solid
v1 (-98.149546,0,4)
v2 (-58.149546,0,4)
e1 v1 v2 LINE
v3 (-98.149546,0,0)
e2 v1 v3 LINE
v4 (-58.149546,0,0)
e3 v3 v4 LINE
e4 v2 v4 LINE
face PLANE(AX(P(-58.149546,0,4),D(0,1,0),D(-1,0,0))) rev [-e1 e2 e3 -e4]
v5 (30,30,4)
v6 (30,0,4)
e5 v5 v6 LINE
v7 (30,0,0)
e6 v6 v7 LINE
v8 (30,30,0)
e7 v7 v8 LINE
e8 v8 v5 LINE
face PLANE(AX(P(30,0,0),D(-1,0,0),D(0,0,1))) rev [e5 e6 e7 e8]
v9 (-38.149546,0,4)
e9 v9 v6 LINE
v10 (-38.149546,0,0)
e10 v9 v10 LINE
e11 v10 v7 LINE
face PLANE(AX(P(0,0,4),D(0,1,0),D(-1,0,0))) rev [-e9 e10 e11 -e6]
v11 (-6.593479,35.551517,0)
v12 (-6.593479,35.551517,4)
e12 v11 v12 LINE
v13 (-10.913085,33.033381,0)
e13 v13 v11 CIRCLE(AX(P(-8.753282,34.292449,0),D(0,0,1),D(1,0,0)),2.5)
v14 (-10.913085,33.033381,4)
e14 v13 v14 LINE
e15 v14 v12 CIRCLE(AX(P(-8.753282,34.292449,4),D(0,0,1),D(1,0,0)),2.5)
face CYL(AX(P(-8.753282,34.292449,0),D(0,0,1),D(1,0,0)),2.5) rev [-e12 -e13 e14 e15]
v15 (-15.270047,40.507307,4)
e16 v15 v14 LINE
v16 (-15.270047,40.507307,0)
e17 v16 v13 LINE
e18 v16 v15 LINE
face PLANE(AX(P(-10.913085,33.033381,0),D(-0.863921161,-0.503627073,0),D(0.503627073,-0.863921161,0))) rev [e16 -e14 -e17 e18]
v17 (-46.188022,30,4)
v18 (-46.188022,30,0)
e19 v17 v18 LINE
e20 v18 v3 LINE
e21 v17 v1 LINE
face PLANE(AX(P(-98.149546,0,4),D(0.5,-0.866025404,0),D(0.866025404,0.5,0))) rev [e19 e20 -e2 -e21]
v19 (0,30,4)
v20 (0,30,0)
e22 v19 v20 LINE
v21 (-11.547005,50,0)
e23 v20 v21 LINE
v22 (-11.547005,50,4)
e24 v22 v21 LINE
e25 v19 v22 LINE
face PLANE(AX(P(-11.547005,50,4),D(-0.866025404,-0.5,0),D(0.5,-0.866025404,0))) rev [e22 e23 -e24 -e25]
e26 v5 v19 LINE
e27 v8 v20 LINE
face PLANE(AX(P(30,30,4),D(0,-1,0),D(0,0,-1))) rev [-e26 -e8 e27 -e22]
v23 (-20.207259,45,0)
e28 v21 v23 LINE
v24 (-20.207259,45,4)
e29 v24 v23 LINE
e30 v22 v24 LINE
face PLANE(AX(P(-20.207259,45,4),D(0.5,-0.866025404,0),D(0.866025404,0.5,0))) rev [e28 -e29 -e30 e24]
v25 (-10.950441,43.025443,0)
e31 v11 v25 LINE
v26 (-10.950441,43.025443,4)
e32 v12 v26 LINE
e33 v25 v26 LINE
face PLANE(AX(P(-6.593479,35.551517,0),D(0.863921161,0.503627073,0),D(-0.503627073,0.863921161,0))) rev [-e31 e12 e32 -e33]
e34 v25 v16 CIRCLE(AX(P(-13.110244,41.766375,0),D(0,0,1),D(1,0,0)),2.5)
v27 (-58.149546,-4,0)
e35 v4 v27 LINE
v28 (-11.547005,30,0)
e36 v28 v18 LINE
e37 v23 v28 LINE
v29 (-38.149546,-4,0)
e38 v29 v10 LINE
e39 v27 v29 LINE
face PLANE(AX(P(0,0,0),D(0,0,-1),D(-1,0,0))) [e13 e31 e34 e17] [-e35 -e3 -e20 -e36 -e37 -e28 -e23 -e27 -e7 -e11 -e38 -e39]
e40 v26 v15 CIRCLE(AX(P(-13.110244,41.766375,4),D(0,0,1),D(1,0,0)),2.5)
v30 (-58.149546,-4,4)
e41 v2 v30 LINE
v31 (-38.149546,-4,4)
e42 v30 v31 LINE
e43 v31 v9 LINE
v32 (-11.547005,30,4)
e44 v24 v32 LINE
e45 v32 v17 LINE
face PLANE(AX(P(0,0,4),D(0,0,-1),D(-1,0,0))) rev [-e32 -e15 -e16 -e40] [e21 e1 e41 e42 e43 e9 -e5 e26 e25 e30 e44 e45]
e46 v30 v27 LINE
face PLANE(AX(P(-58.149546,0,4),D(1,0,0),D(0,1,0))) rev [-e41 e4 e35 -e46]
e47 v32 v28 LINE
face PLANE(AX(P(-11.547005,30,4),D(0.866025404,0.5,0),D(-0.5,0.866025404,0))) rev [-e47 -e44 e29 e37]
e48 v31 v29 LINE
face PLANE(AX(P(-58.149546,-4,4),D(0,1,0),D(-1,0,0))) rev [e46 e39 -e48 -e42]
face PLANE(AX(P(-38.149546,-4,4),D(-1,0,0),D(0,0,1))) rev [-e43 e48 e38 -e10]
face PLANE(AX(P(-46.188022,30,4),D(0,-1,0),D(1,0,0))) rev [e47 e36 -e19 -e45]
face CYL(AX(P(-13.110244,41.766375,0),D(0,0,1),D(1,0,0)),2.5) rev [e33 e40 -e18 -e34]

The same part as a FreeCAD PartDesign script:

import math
import FreeCAD as App
import Part
import Sketcher
Q = App.Units.Quantity


def add_polygon(sketch, points):
    """Adds a closed chain of lines whose ends are joined by coincident constraints."""
    first, n = sketch.GeometryCount, len(points)
    for a, b in zip(points, points[1:] + points[:1]):
        sketch.addGeometry(Part.LineSegment(App.Vector(*a, 0), App.Vector(*b, 0)), False)
    for i in range(n):
        sketch.addConstraint(Sketcher.Constraint("Coincident", first + i, 2, first + (i + 1) % n, 1))

doc = App.newDocument("Part")
body = doc.addObject("PartDesign::Body", "Body")

sketch1 = doc.addObject("Sketcher::SketchObject", "Sketch")
body.addObject(sketch1)
sketch1.AttachmentSupport = (doc.XY_Plane, [""])
sketch1.MapMode = "FlatFace"
add_polygon(sketch1, [(-38.1, 0), (0, 0), (0, 30), (-11.5, 50), (-20.2, 45), (-11.5, 30), (-46.2, 30), (-98.1, 0), (-58.1, 0), (-58.1, -4), (-38.1, -4)])
sketch1.addConstraint([
    Sketcher.Constraint("Horizontal", 0),
    Sketcher.Constraint("Vertical", 1),
    Sketcher.Constraint("Horizontal", 5),
    Sketcher.Constraint("Horizontal", 7),
    Sketcher.Constraint("Vertical", 8),
    Sketcher.Constraint("Horizontal", 9),
    Sketcher.Constraint("Vertical", 10),
    Sketcher.Constraint("Coincident", 0, 2, -1, 1),
    Sketcher.Constraint("PointOnObject", 6, 2, -1),
    Sketcher.Constraint("Perpendicular", 2, 3),
    Sketcher.Constraint("Perpendicular", 3, 4),
    Sketcher.Constraint("Perpendicular", 4, 6),
    Sketcher.Constraint("Horizontal", 1, 2, 4, 2),
    Sketcher.Constraint("Vertical", 2, 2, 4, 2),
    Sketcher.Constraint("DistanceX", 7, 1, 7, 2, 40.0),
    Sketcher.Constraint("DistanceX", 9, 1, 9, 2, 20.0),
    Sketcher.Constraint("DistanceY", 1, 1, 1, 2, 30.0),
    Sketcher.Constraint("DistanceY", 8, 2, 8, 1, 4.0),
    Sketcher.Constraint("Angle", 2, Q("120 deg")),
    Sketcher.Constraint("Distance", 3, 10.0),
    Sketcher.Constraint("DistanceX", 0, 1, 0, 2, 38.149546),
])
pad1 = doc.addObject("PartDesign::Pad", "Pad")
body.addObject(pad1)
pad1.Profile = sketch1
pad1.Length = 4

sketch2 = doc.addObject("Sketcher::SketchObject", "Sketch001")
body.addObject(sketch2)
sketch2.AttachmentSupport = (doc.XY_Plane, [""])
sketch2.MapMode = "FlatFace"
sketch2.AttachmentOffset = App.Placement(App.Vector(0, 0, 4), App.Rotation())
sketch2.addGeometry([
    Part.LineSegment(App.Vector(-6.6, 35.6, 0), App.Vector(-11, 43, 0)),
    Part.ArcOfCircle(Part.Circle(App.Vector(-13.1, 41.8, 0), App.Vector(0, 0, 1), 2.5), math.radians(30), math.radians(210)),
    Part.LineSegment(App.Vector(-15.3, 40.5, 0), App.Vector(-10.9, 33, 0)),
    Part.ArcOfCircle(Part.Circle(App.Vector(-8.8, 34.3, 0), App.Vector(0, 0, 1), 2.5), math.radians(-150), math.radians(30)),
], False)
sketch2.addConstraint([
    Sketcher.Constraint("Tangent", 0, 2, 1, 1),
    Sketcher.Constraint("Tangent", 1, 2, 2, 1),
    Sketcher.Constraint("Tangent", 2, 2, 3, 1),
    Sketcher.Constraint("Tangent", 3, 2, 0, 1),
    Sketcher.Constraint("Equal", 1, 3),
    Sketcher.Constraint("Radius", 1, 2.5),
    Sketcher.Constraint("DistanceX", 3, 3, -1, 1, 8.753282),
    Sketcher.Constraint("DistanceY", -1, 1, 3, 3, 34.292449),
    Sketcher.Constraint("DistanceX", 0, 2, -1, 1, 10.950441),
    Sketcher.Constraint("DistanceY", -1, 1, 2, 2, 33.033381),
])
pocket1 = doc.addObject("PartDesign::Pocket", "Pocket")
body.addObject(pocket1)
pocket1.Profile = sketch2
pocket1.Length = 4

sketch3 = doc.addObject("Sketcher::SketchObject", "Sketch002")
body.addObject(sketch3)
sketch3.AttachmentSupport = (doc.YZ_Plane, [""])
sketch3.MapMode = "FlatFace"
add_polygon(sketch3, [(30, 4), (0, 4), (0, 0), (30, 0)])
sketch3.addConstraint([
    Sketcher.Constraint("Horizontal", 0),
    Sketcher.Constraint("Vertical", 1),
    Sketcher.Constraint("Horizontal", 2),
    Sketcher.Constraint("Vertical", 3),
    Sketcher.Constraint("Coincident", 1, 2, -1, 1),
    Sketcher.Constraint("DistanceX", 0, 2, 0, 1, 30.0),
    Sketcher.Constraint("DistanceY", 1, 2, 1, 1, 4.0),
])
pad2 = doc.addObject("PartDesign::Pad", "Pad001")
body.addObject(pad2)
pad2.Profile = sketch3
pad2.Length = 30

doc.recompute()
